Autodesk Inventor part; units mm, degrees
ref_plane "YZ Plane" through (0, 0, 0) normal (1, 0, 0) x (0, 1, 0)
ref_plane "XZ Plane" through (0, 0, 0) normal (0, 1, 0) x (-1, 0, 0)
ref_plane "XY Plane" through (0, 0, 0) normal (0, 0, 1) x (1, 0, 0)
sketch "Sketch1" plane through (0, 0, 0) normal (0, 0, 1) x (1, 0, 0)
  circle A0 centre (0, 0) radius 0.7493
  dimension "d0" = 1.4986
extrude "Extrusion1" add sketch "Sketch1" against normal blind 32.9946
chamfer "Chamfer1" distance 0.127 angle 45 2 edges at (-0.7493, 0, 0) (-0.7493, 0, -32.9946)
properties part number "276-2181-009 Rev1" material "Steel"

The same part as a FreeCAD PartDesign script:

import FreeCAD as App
import Part
import Sketcher

V = App.Vector
Q = App.Units.Quantity


def edges_at(feature, points):
    """Names of the edges that pass closest to the given points."""
    edges = feature.Shape.Edges
    near = lambda p: min(range(len(edges)), key=lambda i: edges[i].distToShape(Part.Vertex(*p))[0])
    return sorted({f"Edge{near(p) + 1}" for p in points})

doc = App.newDocument("Part")
body = doc.addObject("PartDesign::Body", "Body")

sketch1 = body.newObject("Sketcher::SketchObject", "Sketch")
sketch1.AttachmentSupport = (doc.getObject("XY_Plane"), [""])
sketch1.MapMode = "FlatFace"
sketch1.addGeometry(Part.Circle(V(0, 0, 0), V(0, 0, 1), 0.7493), False)
sketch1.addConstraint(Sketcher.Constraint("Coincident", 0, 3, -1, 1))
sketch1.addConstraint(Sketcher.Constraint("Diameter", 0, Q("0.059 in")))
pad1 = body.newObject("PartDesign::Pad", "Pad")
pad1.Profile = sketch1
pad1.Length = Q("1.299 in")
pad1.Reversed = True
doc.recompute()

chamfer = body.newObject("PartDesign::Chamfer", "Chamfer")
chamfer.Base = (pad1, edges_at(pad1, [(-0.749, 0, 0), (-0.749, 0, -32.995)]))
chamfer.Size = Q("0.005 in")

doc.recompute()
